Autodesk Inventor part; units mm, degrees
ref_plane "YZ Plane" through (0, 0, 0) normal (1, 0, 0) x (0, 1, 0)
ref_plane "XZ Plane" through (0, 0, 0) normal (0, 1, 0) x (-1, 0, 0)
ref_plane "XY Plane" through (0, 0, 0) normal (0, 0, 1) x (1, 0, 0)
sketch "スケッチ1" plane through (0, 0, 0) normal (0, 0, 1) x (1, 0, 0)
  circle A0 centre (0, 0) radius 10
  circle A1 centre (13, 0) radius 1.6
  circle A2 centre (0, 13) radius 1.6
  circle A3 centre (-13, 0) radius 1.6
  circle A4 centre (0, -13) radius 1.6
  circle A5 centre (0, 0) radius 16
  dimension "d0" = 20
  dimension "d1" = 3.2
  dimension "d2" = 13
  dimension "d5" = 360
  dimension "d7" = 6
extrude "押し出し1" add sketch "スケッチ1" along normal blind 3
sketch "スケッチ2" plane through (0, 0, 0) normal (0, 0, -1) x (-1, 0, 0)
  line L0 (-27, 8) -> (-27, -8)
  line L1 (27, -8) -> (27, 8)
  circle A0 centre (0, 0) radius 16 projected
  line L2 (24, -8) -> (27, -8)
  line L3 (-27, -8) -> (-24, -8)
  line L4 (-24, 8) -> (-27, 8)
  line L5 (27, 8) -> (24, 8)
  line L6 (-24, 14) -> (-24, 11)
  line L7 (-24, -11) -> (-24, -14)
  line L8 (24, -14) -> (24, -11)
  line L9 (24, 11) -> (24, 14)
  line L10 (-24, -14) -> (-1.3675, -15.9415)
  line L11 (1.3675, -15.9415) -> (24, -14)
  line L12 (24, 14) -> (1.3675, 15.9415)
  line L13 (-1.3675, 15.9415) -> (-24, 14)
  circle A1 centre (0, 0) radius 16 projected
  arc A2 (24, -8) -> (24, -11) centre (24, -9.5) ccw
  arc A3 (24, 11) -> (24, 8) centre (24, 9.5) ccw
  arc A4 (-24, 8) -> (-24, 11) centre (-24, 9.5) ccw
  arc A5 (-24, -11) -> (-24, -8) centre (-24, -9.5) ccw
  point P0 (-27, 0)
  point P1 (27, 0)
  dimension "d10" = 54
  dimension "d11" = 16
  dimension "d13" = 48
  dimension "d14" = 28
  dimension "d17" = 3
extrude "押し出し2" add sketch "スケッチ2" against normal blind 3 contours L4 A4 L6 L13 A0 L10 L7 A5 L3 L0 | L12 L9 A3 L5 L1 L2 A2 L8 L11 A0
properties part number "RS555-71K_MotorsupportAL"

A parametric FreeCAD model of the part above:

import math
import FreeCAD as App
import Part
import Sketcher

doc = App.newDocument("Part")
body = doc.addObject("PartDesign::Body", "Body")

sketch1 = doc.addObject("Sketcher::SketchObject", "Sketch")
body.addObject(sketch1)
sketch1.AttachmentSupport = (doc.XY_Plane, [""])
sketch1.MapMode = "FlatFace"
sketch1.addGeometry([
    Part.Circle(App.Vector(0, 0, 0), App.Vector(0, 0, 1), 16),
    Part.Circle(App.Vector(0, -13, 0), App.Vector(0, 0, 1), 1.6),
    Part.Circle(App.Vector(-13, 0, 0), App.Vector(0, 0, 1), 1.6),
    Part.Circle(App.Vector(0, 0, 0), App.Vector(0, 0, 1), 10),
    Part.Circle(App.Vector(13, 0, 0), App.Vector(0, 0, 1), 1.6),
    Part.Circle(App.Vector(0, 13, 0), App.Vector(0, 0, 1), 1.6),
], False)
sketch1.addConstraint([
    Sketcher.Constraint("Coincident", 0, 3, -1, 1),
    Sketcher.Constraint("Coincident", 3, 3, -1, 1),
    Sketcher.Constraint("Equal", 1, 2),
    Sketcher.Constraint("Equal", 2, 4),
    Sketcher.Constraint("Equal", 4, 5),
    Sketcher.Constraint("Symmetric", 2, 3, 4, 3, -1, 1),
    Sketcher.Constraint("Symmetric", 1, 3, 5, 3, -1, 1),
    Sketcher.Constraint("PointOnObject", 1, 3, -2),
    Sketcher.Constraint("PointOnObject", 2, 3, -1),
    Sketcher.Constraint("Diameter", 3, 20.0),
    Sketcher.Constraint("Diameter", 1, 3.2),
    Sketcher.Constraint("Diameter", 0, 32.0),
    Sketcher.Constraint("DistanceY", 1, 3, -1, 1, 13.0),
    Sketcher.Constraint("DistanceX", 2, 3, -1, 1, 13.0),
])
pad1 = doc.addObject("PartDesign::Pad", "Pad")
body.addObject(pad1)
pad1.Profile = sketch1
pad1.Length = 3

sketch2 = doc.addObject("Sketcher::SketchObject", "Sketch001")
body.addObject(sketch2)
sketch2.AttachmentSupport = (doc.XY_Plane, [""])
sketch2.MapMode = "FlatFace"
sketch2.addGeometry([
    Part.LineSegment(App.Vector(24, 8, 0), App.Vector(27, 8, 0)),
    Part.LineSegment(App.Vector(27, 8, 0), App.Vector(27, -8, 0)),
    Part.LineSegment(App.Vector(27, -8, 0), App.Vector(24, -8, 0)),
    Part.ArcOfCircle(Part.Circle(App.Vector(24, -9.5, 0), App.Vector(0, 0, 1), 1.5), math.radians(90), math.radians(270)),
    Part.LineSegment(App.Vector(24, -11, 0), App.Vector(24, -14, 0)),
    Part.LineSegment(App.Vector(24, -14, 0), App.Vector(1.4, -15.9, 0)),
    Part.ArcOfCircle(Part.Circle(App.Vector(0, 0, 0), App.Vector(0, 0, 1), 16), math.radians(-85), math.radians(85)),
    Part.LineSegment(App.Vector(1.4, 15.9, 0), App.Vector(24, 14, 0)),
    Part.LineSegment(App.Vector(24, 14, 0), App.Vector(24, 11, 0)),
    Part.ArcOfCircle(Part.Circle(App.Vector(24, 9.5, 0), App.Vector(0, 0, 1), 1.5), math.radians(90), math.radians(270)),
    Part.LineSegment(App.Vector(-24, 14, 0), App.Vector(-1.4, 15.9, 0)),
    Part.ArcOfCircle(Part.Circle(App.Vector(0, 0, 0), App.Vector(0, 0, 1), 16), math.radians(95), math.radians(265)),
    Part.LineSegment(App.Vector(-1.4, -15.9, 0), App.Vector(-24, -14, 0)),
    Part.LineSegment(App.Vector(-24, -14, 0), App.Vector(-24, -11, 0)),
    Part.ArcOfCircle(Part.Circle(App.Vector(-24, -9.5, 0), App.Vector(0, 0, 1), 1.5), math.radians(-90), math.radians(90)),
    Part.LineSegment(App.Vector(-24, -8, 0), App.Vector(-27, -8, 0)),
    Part.LineSegment(App.Vector(-27, -8, 0), App.Vector(-27, 8, 0)),
    Part.LineSegment(App.Vector(-27, 8, 0), App.Vector(-24, 8, 0)),
    Part.ArcOfCircle(Part.Circle(App.Vector(-24, 9.5, 0), App.Vector(0, 0, 1), 1.5), math.radians(-90), math.radians(90)),
    Part.LineSegment(App.Vector(-24, 11, 0), App.Vector(-24, 14, 0)),
], False)
sketch2.addConstraint([
    Sketcher.Constraint("Coincident", 0, 2, 1, 1),
    Sketcher.Constraint("Coincident", 1, 2, 2, 1),
    Sketcher.Constraint("Tangent", 2, 2, 3, 1),
    Sketcher.Constraint("Coincident", 3, 2, 4, 1),
    Sketcher.Constraint("Coincident", 4, 2, 5, 1),
    Sketcher.Constraint("Tangent", 5, 2, 6, 1),
    Sketcher.Constraint("Tangent", 6, 2, 7, 1),
    Sketcher.Constraint("Coincident", 7, 2, 8, 1),
    Sketcher.Constraint("Coincident", 8, 2, 9, 1),
    Sketcher.Constraint("Tangent", 9, 2, 0, 1),
    Sketcher.Constraint("Tangent", 10, 2, 11, 1),
    Sketcher.Constraint("Tangent", 11, 2, 12, 1),
    Sketcher.Constraint("Coincident", 12, 2, 13, 1),
    Sketcher.Constraint("Coincident", 13, 2, 14, 1),
    Sketcher.Constraint("Tangent", 14, 2, 15, 1),
    Sketcher.Constraint("Coincident", 15, 2, 16, 1),
    Sketcher.Constraint("Coincident", 16, 2, 17, 1),
    Sketcher.Constraint("Tangent", 17, 2, 18, 1),
    Sketcher.Constraint("Coincident", 18, 2, 19, 1),
    Sketcher.Constraint("Coincident", 19, 2, 10, 1),
    Sketcher.Constraint("Horizontal", 0),
    Sketcher.Constraint("Vertical", 1),
    Sketcher.Constraint("Horizontal", 2),
    Sketcher.Constraint("Vertical", 4),
    Sketcher.Constraint("Vertical", 8),
    Sketcher.Constraint("Vertical", 13),
    Sketcher.Constraint("Horizontal", 15),
    Sketcher.Constraint("Vertical", 16),
    Sketcher.Constraint("Horizontal", 17),
    Sketcher.Constraint("Vertical", 19),
    Sketcher.Constraint("Coincident", 6, 3, -1, 1),
    Sketcher.Constraint("Coincident", 11, 3, -1, 1),
    Sketcher.Constraint("Equal", 3, 9),
    Sketcher.Constraint("Equal", 6, 11),
    Sketcher.Constraint("Equal", 9, 14),
    Sketcher.Constraint("Equal", 14, 18),
    Sketcher.Constraint("Symmetric", 9, 3, 14, 3, -1, 1),
    Sketcher.Constraint("Symmetric", 3, 3, 18, 3, -1, 1),
    Sketcher.Constraint("Symmetric", 7, 2, 12, 2, -1, 1),
    Sketcher.Constraint("Symmetric", 4, 2, 19, 2, -1, 1),
    Sketcher.Constraint("Symmetric", 3, 3, 14, 3, -2),
    Sketcher.Constraint("Symmetric", 4, 2, 12, 2, -2),
    Sketcher.Constraint("Vertical", 2, 2, 3, 2),
    Sketcher.Constraint("Equal", 2, 15),
    Sketcher.Constraint("Equal", 17, 4),
    Sketcher.Constraint("Radius", 6, 16.0),
    Sketcher.Constraint("Radius", 3, 1.5),
    Sketcher.Constraint("DistanceX", 0, 1, 0, 2, 3.0),
    Sketcher.Constraint("DistanceY", 1, 2, 1, 1, 16.0),
    Sketcher.Constraint("DistanceX", 14, 3, 3, 3, 48.0),
])
pad2 = doc.addObject("PartDesign::Pad", "Pad001")
body.addObject(pad2)
pad2.Profile = sketch2
pad2.Length = 3

doc.recompute()
